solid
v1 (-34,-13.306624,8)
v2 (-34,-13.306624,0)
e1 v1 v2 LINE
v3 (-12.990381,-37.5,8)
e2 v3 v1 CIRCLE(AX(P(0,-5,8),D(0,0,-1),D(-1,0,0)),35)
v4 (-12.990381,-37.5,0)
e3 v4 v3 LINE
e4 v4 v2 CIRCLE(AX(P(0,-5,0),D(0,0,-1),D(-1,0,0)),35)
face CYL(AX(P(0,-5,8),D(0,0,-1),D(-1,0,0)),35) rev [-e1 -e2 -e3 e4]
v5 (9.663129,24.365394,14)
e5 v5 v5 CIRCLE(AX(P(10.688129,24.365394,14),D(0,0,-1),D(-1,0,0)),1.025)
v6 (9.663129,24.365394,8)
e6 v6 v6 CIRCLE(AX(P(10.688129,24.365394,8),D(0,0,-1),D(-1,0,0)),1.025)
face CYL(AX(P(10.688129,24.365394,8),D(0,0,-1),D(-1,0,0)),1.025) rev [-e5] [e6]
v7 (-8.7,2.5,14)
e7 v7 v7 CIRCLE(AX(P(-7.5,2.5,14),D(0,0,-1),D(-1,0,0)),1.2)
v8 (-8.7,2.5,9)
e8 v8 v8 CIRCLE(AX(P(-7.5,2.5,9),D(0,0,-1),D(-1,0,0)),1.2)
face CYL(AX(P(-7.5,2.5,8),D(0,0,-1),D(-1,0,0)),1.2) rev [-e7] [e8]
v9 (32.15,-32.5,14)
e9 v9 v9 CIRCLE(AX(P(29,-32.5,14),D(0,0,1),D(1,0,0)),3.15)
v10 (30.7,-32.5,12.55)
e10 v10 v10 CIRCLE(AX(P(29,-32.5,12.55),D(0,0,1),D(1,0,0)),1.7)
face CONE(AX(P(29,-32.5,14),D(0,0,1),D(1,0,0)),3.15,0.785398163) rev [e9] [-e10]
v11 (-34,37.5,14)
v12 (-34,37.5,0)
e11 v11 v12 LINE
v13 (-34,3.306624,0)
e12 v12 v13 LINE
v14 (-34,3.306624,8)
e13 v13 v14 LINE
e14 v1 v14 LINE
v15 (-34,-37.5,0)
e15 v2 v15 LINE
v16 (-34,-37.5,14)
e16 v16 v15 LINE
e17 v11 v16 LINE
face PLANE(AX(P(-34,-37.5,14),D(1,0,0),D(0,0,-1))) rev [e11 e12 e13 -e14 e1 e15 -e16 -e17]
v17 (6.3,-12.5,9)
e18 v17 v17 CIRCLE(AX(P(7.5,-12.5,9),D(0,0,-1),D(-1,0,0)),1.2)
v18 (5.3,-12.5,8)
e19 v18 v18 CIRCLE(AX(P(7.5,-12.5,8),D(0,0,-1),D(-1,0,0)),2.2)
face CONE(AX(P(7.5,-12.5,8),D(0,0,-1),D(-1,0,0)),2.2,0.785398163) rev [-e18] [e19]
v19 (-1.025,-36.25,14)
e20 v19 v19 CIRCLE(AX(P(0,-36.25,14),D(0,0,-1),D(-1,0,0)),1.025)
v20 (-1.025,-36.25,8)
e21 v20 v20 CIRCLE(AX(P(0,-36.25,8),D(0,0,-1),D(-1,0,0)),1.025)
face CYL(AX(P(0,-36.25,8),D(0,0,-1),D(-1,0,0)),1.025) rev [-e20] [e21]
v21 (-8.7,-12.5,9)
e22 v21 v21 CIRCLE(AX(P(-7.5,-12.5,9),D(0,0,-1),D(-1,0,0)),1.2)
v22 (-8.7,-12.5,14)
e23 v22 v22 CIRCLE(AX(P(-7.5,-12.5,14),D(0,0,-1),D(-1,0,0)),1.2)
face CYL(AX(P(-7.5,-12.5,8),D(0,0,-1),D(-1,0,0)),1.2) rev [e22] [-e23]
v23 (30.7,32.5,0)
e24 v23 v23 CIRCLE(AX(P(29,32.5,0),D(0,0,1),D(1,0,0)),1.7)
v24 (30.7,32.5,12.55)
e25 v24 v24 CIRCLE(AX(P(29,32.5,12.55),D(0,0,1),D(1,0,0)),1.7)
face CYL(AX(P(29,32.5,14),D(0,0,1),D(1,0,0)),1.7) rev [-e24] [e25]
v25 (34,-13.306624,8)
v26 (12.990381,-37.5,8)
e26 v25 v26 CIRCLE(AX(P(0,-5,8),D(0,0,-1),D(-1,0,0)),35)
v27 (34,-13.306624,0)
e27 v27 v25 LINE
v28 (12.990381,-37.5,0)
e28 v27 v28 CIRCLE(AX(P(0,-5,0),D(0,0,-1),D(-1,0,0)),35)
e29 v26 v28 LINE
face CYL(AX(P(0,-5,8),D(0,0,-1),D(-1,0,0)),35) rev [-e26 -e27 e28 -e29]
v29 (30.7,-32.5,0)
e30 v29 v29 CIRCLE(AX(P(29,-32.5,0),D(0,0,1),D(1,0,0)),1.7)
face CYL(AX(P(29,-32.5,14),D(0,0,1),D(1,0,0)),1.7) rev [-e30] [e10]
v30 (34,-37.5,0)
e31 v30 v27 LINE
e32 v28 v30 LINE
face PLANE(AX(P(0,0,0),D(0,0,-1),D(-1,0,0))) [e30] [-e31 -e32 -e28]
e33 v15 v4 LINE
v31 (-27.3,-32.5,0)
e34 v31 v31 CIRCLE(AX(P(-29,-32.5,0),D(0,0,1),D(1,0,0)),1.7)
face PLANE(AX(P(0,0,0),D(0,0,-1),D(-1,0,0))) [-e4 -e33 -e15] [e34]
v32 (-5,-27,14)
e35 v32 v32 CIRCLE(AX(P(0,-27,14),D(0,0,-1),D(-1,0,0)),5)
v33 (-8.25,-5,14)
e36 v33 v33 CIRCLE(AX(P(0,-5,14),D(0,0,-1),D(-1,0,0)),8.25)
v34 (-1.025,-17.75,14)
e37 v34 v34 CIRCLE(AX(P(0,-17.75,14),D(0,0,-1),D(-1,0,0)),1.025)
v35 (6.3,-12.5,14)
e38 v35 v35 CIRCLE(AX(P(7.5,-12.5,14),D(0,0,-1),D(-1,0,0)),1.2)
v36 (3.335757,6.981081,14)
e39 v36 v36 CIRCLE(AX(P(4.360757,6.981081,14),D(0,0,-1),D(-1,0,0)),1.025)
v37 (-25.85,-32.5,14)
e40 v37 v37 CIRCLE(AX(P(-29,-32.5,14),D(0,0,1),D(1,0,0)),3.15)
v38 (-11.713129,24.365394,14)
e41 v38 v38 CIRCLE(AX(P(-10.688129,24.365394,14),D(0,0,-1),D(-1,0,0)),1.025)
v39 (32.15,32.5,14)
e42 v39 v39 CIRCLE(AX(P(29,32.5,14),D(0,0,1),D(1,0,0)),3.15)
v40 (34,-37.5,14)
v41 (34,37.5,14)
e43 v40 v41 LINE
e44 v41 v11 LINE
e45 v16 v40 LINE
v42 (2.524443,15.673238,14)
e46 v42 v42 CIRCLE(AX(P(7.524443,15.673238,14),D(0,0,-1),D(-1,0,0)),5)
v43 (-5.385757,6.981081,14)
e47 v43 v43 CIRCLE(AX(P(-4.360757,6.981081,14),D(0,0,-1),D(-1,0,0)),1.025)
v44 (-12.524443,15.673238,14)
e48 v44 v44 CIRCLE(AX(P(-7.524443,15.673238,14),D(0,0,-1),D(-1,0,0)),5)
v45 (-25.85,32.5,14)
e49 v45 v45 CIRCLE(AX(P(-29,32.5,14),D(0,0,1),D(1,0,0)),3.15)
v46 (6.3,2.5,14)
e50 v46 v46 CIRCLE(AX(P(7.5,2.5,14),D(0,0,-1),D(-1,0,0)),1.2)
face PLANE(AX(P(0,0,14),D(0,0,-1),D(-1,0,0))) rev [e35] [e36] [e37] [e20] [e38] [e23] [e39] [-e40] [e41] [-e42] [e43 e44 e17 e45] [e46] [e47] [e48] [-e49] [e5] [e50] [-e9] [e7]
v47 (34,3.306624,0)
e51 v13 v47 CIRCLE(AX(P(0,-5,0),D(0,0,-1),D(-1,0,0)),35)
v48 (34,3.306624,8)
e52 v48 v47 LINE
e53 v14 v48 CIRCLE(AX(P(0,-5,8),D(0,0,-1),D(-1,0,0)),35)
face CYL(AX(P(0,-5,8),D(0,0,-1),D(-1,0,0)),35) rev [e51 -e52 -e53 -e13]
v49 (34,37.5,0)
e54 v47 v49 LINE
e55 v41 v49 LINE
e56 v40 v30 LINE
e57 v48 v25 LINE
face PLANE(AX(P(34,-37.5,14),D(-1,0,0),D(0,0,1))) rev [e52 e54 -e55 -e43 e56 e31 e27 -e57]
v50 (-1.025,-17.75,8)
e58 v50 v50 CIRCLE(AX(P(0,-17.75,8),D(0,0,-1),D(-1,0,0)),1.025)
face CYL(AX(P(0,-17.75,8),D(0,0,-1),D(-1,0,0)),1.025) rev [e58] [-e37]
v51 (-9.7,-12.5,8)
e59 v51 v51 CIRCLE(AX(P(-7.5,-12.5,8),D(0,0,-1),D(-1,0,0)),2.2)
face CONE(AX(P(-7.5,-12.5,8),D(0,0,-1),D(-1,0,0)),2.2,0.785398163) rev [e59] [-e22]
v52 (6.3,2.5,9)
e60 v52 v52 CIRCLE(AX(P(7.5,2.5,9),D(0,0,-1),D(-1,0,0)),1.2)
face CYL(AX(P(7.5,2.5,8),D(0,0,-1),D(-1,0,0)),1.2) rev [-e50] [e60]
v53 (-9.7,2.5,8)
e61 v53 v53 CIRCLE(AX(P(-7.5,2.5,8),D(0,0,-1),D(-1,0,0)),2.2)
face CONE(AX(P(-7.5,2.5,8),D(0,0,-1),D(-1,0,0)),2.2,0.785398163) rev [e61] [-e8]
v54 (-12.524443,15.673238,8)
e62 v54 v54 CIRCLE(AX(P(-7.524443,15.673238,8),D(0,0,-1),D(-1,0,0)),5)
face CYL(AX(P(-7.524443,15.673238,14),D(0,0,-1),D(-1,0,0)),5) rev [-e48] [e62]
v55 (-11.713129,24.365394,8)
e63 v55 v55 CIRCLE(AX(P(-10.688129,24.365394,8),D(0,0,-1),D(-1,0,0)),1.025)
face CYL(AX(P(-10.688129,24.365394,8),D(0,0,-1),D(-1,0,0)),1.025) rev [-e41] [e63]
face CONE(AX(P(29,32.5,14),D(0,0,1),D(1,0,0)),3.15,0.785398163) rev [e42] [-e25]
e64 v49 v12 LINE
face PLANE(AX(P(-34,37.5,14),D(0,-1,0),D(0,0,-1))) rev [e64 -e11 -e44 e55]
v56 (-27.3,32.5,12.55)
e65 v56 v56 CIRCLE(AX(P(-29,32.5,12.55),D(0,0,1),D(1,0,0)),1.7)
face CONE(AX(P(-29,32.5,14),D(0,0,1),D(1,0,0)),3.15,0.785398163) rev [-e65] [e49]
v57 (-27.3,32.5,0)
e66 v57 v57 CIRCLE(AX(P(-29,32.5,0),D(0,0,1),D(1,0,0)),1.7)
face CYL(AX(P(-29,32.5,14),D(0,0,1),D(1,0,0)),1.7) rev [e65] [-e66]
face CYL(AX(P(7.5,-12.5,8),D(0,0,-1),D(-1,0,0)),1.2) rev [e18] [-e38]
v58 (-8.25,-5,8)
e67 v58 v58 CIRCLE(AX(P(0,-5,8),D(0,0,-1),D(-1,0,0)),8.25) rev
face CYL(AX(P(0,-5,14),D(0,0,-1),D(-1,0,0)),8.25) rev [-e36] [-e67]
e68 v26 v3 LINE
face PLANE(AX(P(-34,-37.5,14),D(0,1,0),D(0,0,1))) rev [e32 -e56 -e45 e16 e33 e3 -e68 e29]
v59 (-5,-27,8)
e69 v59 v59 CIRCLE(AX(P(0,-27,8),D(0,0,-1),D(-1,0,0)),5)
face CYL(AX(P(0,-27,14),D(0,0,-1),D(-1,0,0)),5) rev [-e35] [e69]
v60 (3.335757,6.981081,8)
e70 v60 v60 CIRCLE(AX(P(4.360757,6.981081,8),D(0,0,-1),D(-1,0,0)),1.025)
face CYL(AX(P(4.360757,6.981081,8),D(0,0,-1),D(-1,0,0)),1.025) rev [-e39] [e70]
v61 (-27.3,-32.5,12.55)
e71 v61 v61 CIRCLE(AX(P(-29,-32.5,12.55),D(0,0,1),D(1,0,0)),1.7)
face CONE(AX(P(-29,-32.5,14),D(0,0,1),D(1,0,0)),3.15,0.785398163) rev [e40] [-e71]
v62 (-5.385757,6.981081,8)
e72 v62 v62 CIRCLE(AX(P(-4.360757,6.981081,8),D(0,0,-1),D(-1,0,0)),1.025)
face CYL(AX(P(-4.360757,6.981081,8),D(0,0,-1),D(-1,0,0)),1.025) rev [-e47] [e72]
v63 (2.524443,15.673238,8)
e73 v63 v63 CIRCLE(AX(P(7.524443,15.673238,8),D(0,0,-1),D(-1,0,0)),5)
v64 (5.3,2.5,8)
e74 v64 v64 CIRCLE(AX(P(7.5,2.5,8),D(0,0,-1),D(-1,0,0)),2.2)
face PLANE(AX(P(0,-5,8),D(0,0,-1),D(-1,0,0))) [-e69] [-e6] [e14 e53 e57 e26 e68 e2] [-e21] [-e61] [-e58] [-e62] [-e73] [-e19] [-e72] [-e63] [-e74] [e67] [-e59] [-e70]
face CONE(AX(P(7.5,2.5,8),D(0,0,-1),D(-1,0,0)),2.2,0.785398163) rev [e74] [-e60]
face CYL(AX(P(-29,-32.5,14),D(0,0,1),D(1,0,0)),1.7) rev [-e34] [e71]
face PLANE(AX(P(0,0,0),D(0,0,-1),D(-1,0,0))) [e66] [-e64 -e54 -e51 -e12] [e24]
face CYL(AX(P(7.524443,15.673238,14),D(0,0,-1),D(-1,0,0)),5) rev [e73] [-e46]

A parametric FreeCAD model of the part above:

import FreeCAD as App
import Part
import Sketcher

V = App.Vector
Q = App.Units.Quantity

doc = App.newDocument("Part")
body = doc.addObject("PartDesign::Body", "Body")

# Sketch on XY plane
sketch1 = body.newObject("Sketcher::SketchObject", "Sketch")
sketch1.AttachmentSupport = (doc.getObject("XY_Plane"), [""])
sketch1.MapMode = "FlatFace"
sketch1.addGeometry([
    Part.LineSegment(V(-34, 37.5, 0), V(-34, -37.5, 0)),
    Part.LineSegment(V(-34, -37.5, 0), V(34, -37.5, 0)),
    Part.LineSegment(V(34, -37.5, 0), V(34, 37.5, 0)),
    Part.LineSegment(V(34, 37.5, 0), V(-34, 37.5, 0)),
], False)
sketch1.addConstraint([
    Sketcher.Constraint("Coincident", 0, 2, 1, 1),
    Sketcher.Constraint("Coincident", 1, 2, 2, 1),
    Sketcher.Constraint("Coincident", 2, 2, 3, 1),
    Sketcher.Constraint("Coincident", 3, 2, 0, 1),
    Sketcher.Constraint("Vertical", 0),
    Sketcher.Constraint("Horizontal", 1),
    Sketcher.Constraint("Vertical", 2),
    Sketcher.Constraint("Horizontal", 3),
    Sketcher.Constraint("Symmetric", 0, 2, 2, 2, -1, 1),
    Sketcher.Constraint("DistanceX", 1, 1, 1, 2, Q("68 mm")),
    Sketcher.Constraint("DistanceY", 0, 2, 0, 1, Q("75 mm")),
])
pad1 = body.newObject("PartDesign::Pad", "Pad")
pad1.Profile = sketch1
pad1.Length = 14

# Sketch on XY plane
sketch2 = body.newObject("Sketcher::SketchObject", "Sketch001")
sketch2.AttachmentSupport = (doc.getObject("XY_Plane"), [""])
sketch2.MapMode = "FlatFace"
sketch2.addGeometry(Part.Circle(V(0, -5, 0), V(0, 0, 1), 8.25), False)
sketch2.addConstraint([
    Sketcher.Constraint("PointOnObject", 0, 3, -2),
    Sketcher.Constraint("Diameter", 0, Q("16.5 mm")),
    Sketcher.Constraint("DistanceY", 0, 3, -1, 1, Q("5 mm")),
])
pocket1 = body.newObject("PartDesign::Pocket", "Pocket")
pocket1.Profile = sketch2
pocket1.Type = "ThroughAll"
pocket1.Reversed = True

# Sketch on XY plane
sketch3 = body.newObject("Sketcher::SketchObject", "Sketch002")
sketch3.AttachmentSupport = (doc.getObject("XY_Plane"), [""])
sketch3.MapMode = "FlatFace"
sketch3.addGeometry(Part.Circle(V(0, -5, 0), V(0, 0, 1), 35), False)
sketch3.addConstraint([
    Sketcher.Constraint("PointOnObject", 0, 3, -2),
    Sketcher.Constraint("Diameter", 0, Q("70 mm")),
    Sketcher.Constraint("DistanceY", 0, 3, -1, 1, Q("5 mm")),
])
pocket2 = body.newObject("PartDesign::Pocket", "Pocket001")
pocket2.Profile = sketch3
pocket2.Length = 8
pocket2.Reversed = True

# Sketch on XY plane
sketch4 = body.newObject("Sketcher::SketchObject", "Sketch003")
sketch4.AttachmentSupport = (doc.getObject("XY_Plane"), [""])
sketch4.MapMode = "FlatFace"
sketch4.AttachmentOffset = App.Placement(V(0, 0, 8), App.Rotation())
sketch4.addGeometry([
    Part.Circle(V(7.5, 2.5, 0), V(0, 0, 1), 1.2),
    Part.Circle(V(-7.5, -12.5, 0), V(0, 0, 1), 1.2),
    Part.Circle(V(7.5, -12.5, 0), V(0, 0, 1), 1.2),
    Part.Circle(V(-7.5, 2.5, 0), V(0, 0, 1), 1.2),
], False)
sketch4.addConstraint([
    Sketcher.Constraint("Equal", 0, 1),
    Sketcher.Constraint("Equal", 1, 2),
    Sketcher.Constraint("Equal", 2, 3),
    Sketcher.Constraint("Symmetric", 1, 3, 2, 3, -2),
    Sketcher.Constraint("Symmetric", 0, 3, 3, 3, -2),
    Sketcher.Constraint("Vertical", 0, 3, 2, 3),
    Sketcher.Constraint("Diameter", 0, Q("2.4 mm")),
    Sketcher.Constraint("DistanceX", 1, 3, 0, 3, Q("15 mm")),
    Sketcher.Constraint("DistanceY", 1, 3, 0, 3, Q("15 mm")),
    Sketcher.Constraint("DistanceY", -1, 1, 0, 3, Q("2.5 mm")),
])
doc.recompute()
hole = body.newObject("PartDesign::Hole", "Hole")
hole.Profile = sketch4
hole.ThreadType = "None"
hole.Diameter = 2.4
hole.DepthType = "Dimension"
hole.Depth = 6.35
hole.DrillPoint = "Angled"
hole.DrillPointAngle = 118
hole.HoleCutType = "Countersink"
hole.HoleCutDiameter = 4.4
hole.HoleCutCountersinkAngle = 90
hole.Reversed = True

# Sketch on YZ plane
sketch5 = body.newObject("Sketcher::SketchObject", "Sketch004")
sketch5.AttachmentSupport = (doc.getObject("YZ_Plane"), [""])
sketch5.MapMode = "FlatFace"
sketch5.AttachmentOffset = App.Placement(V(0, 0, -10.688129), App.Rotation())
sketch5.addGeometry([
    Part.LineSegment(V(24.365394, 14.965882, 0), V(24.365394, 8, 0)),
    Part.LineSegment(V(24.365394, 8, 0), V(25.390394, 8, 0)),
    Part.LineSegment(V(25.390394, 8, 0), V(25.390394, 14.35, 0)),
    Part.LineSegment(V(25.390394, 14.35, 0), V(24.365394, 14.965882, 0)),
], False)
sketch5.addGeometry(Part.LineSegment(V(24.365394, 8, 0), V(24.365394, 14.965882, 0)), True)  # axis
sketch5.addConstraint([
    Sketcher.Constraint("Coincident", 0, 2, 1, 1),
    Sketcher.Constraint("Coincident", 1, 2, 2, 1),
    Sketcher.Constraint("Coincident", 2, 2, 3, 1),
    Sketcher.Constraint("Coincident", 3, 2, 0, 1),
    Sketcher.Constraint("Vertical", 0),
    Sketcher.Constraint("Horizontal", 1),
    Sketcher.Constraint("Vertical", 2),
    Sketcher.Constraint("Vertical", 4),
    Sketcher.Constraint("Coincident", 4, 1, 0, 2),
    Sketcher.Constraint("Equal", 0, 4),
    Sketcher.Constraint("Angle", 3, Q("149 deg")),
    Sketcher.Constraint("DistanceY", -1, 1, 0, 2, Q("8 mm")),
    Sketcher.Constraint("DistanceY", 2, 1, 2, 2, Q("6.35 mm")),
    Sketcher.Constraint("DistanceX", 1, 1, 1, 2, Q("1.025 mm")),
    Sketcher.Constraint("DistanceX", -1, 1, 0, 2, Q("24.365394 mm")),
])
groove = body.newObject("PartDesign::Groove", "Groove")
groove.Profile = sketch5
groove.ReferenceAxis = (sketch5, ["Axis0"])
groove.Angle = 360
doc.recompute()

datumline = body.newObject("PartDesign::Line", "DatumLine")
datumline.Placement = App.Placement(V(0, 0, 0), App.Rotation(V(0, 0, 1), V(0.342020143, -0.939692621, 0)))
linearpattern = body.newObject("PartDesign::LinearPattern", "LinearPattern")
linearpattern.Originals = [groove]
linearpattern.Direction = (datumline, [""])
linearpattern.Mode = "offset"
linearpattern.Offset = 18.5
linearpattern.Occurrences = 2
body.Tip = linearpattern
doc.recompute()

mirrored = body.newObject("PartDesign::Mirrored", "Mirrored")
mirrored.Originals = [groove]
mirrored.MirrorPlane = (doc.getObject("YZ_Plane"), [""])
body.Tip = mirrored

# Sketch on YZ plane
sketch6 = body.newObject("Sketcher::SketchObject", "Sketch005")
sketch6.AttachmentSupport = (doc.getObject("YZ_Plane"), [""])
sketch6.MapMode = "FlatFace"
sketch6.AttachmentOffset = App.Placement(V(0, 0, 4.360757), App.Rotation())
sketch6.addGeometry([
    Part.LineSegment(V(6.981081, 8, 0), V(6.981081, 14.965882, 0)),
    Part.LineSegment(V(6.981081, 14.965882, 0), V(8.006081, 14.35, 0)),
    Part.LineSegment(V(8.006081, 14.35, 0), V(8.006081, 8, 0)),
    Part.LineSegment(V(8.006081, 8, 0), V(6.981081, 8, 0)),
], False)
sketch6.addGeometry(Part.LineSegment(V(6.981081, 14.965882, 0), V(6.981081, 8, 0)), True)  # axis
sketch6.addConstraint([
    Sketcher.Constraint("Coincident", 0, 2, 1, 1),
    Sketcher.Constraint("Coincident", 1, 2, 2, 1),
    Sketcher.Constraint("Coincident", 2, 2, 3, 1),
    Sketcher.Constraint("Coincident", 3, 2, 0, 1),
    Sketcher.Constraint("Vertical", 0),
    Sketcher.Constraint("Vertical", 2),
    Sketcher.Constraint("Horizontal", 3),
    Sketcher.Constraint("Vertical", 4),
    Sketcher.Constraint("Coincident", 4, 1, 0, 2),
    Sketcher.Constraint("Horizontal", 2, 2, 4, 2),
    Sketcher.Constraint("Angle", 1, Q("-31 deg")),
    Sketcher.Constraint("DistanceY", -1, 1, 2, 2, Q("8 mm")),
    Sketcher.Constraint("DistanceY", 2, 2, 2, 1, Q("6.35 mm")),
    Sketcher.Constraint("DistanceX", 3, 2, 3, 1, Q("1.025 mm")),
    Sketcher.Constraint("DistanceX", -1, 1, 0, 2, Q("6.981081 mm")),
])
groove2 = body.newObject("PartDesign::Groove", "Groove001")
groove2.Profile = sketch6
groove2.ReferenceAxis = (sketch6, ["Axis0"])
groove2.Angle = 360

# Sketch on XY plane
sketch7 = body.newObject("Sketcher::SketchObject", "Sketch006")
sketch7.AttachmentSupport = (doc.getObject("XY_Plane"), [""])
sketch7.MapMode = "FlatFace"
sketch7.AttachmentOffset = App.Placement(V(0, 0, 8), App.Rotation())
sketch7.addGeometry([
    Part.Circle(V(0, -17.75, 0), V(0, 0, 1), 1.025),
    Part.Circle(V(0, -36.25, 0), V(0, 0, 1), 1.025),
], False)
sketch7.addConstraint([
    Sketcher.Constraint("Equal", 0, 1),
    Sketcher.Constraint("PointOnObject", 0, 3, -2),
    Sketcher.Constraint("PointOnObject", 1, 3, -2),
    Sketcher.Constraint("Diameter", 0, Q("2.05 mm")),
    Sketcher.Constraint("DistanceY", 1, 3, 0, 3, Q("18.5 mm")),
    Sketcher.Constraint("DistanceY", 0, 3, -1, 1, Q("17.75 mm")),
])
doc.recompute()
hole2 = body.newObject("PartDesign::Hole", "Hole001")
hole2.Profile = sketch7
hole2.ThreadType = "None"
hole2.Diameter = 2.05
hole2.DepthType = "Dimension"
hole2.Depth = 6.35
hole2.DrillPoint = "Angled"
hole2.DrillPointAngle = 118
hole2.Reversed = True

# Sketch on XY plane
sketch8 = body.newObject("Sketcher::SketchObject", "Sketch007")
sketch8.AttachmentSupport = (doc.getObject("XY_Plane"), [""])
sketch8.MapMode = "FlatFace"
sketch8.AttachmentOffset = App.Placement(V(0, 0, 8), App.Rotation())
sketch8.addGeometry([
    Part.Circle(V(7.524443, 15.673238, 0), V(0, 0, 1), 5),
    Part.Circle(V(-7.524443, 15.673238, 0), V(0, 0, 1), 5),
    Part.Circle(V(0, -27, 0), V(0, 0, 1), 5),
], False)
sketch8.addConstraint([
    Sketcher.Constraint("Equal", 0, 1),
    Sketcher.Constraint("Equal", 1, 2),
    Sketcher.Constraint("Symmetric", 0, 3, 1, 3, -2),
    Sketcher.Constraint("PointOnObject", 2, 3, -2),
    Sketcher.Constraint("Diameter", 0, Q("10 mm")),
    Sketcher.Constraint("DistanceY", 2, 3, -1, 1, Q("27 mm")),
    Sketcher.Constraint("DistanceX", -1, 1, 0, 3, Q("7.524443 mm")),
    Sketcher.Constraint("DistanceY", -1, 1, 0, 3, Q("15.673238 mm")),
])
pocket3 = body.newObject("PartDesign::Pocket", "Pocket002")
pocket3.Profile = sketch8
pocket3.Type = "ThroughAll"
pocket3.Reversed = True

# Sketch on XY plane
sketch9 = body.newObject("Sketcher::SketchObject", "Sketch008")
sketch9.AttachmentSupport = (doc.getObject("XY_Plane"), [""])
sketch9.MapMode = "FlatFace"
sketch9.AttachmentOffset = App.Placement(V(0, 0, 14), App.Rotation())
sketch9.addGeometry([
    Part.Circle(V(-29, 32.5, 0), V(0, 0, 1), 1.7),
    Part.Circle(V(-29, -32.5, 0), V(0, 0, 1), 1.7),
    Part.Circle(V(29, -32.5, 0), V(0, 0, 1), 1.7),
    Part.Circle(V(29, 32.5, 0), V(0, 0, 1), 1.7),
], False)
sketch9.addConstraint([
    Sketcher.Constraint("Equal", 0, 1),
    Sketcher.Constraint("Equal", 1, 2),
    Sketcher.Constraint("Equal", 2, 3),
    Sketcher.Constraint("Symmetric", 0, 3, 2, 3, -1, 1),
    Sketcher.Constraint("Symmetric", 1, 3, 3, 3, -1, 1),
    Sketcher.Constraint("Symmetric", 1, 3, 2, 3, -2),
    Sketcher.Constraint("Diameter", 0, Q("3.4 mm")),
    Sketcher.Constraint("DistanceX", 0, 3, -1, 1, Q("29 mm")),
    Sketcher.Constraint("DistanceY", 1, 3, 0, 3, Q("65 mm")),
])
doc.recompute()
hole3 = body.newObject("PartDesign::Hole", "Hole002")
hole3.Profile = sketch9
hole3.ThreadType = "None"
hole3.Diameter = 3.4
hole3.DepthType = "ThroughAll"
hole3.HoleCutType = "Countersink"
hole3.HoleCutDiameter = 6.3
hole3.HoleCutCountersinkAngle = 90

doc.recompute()
